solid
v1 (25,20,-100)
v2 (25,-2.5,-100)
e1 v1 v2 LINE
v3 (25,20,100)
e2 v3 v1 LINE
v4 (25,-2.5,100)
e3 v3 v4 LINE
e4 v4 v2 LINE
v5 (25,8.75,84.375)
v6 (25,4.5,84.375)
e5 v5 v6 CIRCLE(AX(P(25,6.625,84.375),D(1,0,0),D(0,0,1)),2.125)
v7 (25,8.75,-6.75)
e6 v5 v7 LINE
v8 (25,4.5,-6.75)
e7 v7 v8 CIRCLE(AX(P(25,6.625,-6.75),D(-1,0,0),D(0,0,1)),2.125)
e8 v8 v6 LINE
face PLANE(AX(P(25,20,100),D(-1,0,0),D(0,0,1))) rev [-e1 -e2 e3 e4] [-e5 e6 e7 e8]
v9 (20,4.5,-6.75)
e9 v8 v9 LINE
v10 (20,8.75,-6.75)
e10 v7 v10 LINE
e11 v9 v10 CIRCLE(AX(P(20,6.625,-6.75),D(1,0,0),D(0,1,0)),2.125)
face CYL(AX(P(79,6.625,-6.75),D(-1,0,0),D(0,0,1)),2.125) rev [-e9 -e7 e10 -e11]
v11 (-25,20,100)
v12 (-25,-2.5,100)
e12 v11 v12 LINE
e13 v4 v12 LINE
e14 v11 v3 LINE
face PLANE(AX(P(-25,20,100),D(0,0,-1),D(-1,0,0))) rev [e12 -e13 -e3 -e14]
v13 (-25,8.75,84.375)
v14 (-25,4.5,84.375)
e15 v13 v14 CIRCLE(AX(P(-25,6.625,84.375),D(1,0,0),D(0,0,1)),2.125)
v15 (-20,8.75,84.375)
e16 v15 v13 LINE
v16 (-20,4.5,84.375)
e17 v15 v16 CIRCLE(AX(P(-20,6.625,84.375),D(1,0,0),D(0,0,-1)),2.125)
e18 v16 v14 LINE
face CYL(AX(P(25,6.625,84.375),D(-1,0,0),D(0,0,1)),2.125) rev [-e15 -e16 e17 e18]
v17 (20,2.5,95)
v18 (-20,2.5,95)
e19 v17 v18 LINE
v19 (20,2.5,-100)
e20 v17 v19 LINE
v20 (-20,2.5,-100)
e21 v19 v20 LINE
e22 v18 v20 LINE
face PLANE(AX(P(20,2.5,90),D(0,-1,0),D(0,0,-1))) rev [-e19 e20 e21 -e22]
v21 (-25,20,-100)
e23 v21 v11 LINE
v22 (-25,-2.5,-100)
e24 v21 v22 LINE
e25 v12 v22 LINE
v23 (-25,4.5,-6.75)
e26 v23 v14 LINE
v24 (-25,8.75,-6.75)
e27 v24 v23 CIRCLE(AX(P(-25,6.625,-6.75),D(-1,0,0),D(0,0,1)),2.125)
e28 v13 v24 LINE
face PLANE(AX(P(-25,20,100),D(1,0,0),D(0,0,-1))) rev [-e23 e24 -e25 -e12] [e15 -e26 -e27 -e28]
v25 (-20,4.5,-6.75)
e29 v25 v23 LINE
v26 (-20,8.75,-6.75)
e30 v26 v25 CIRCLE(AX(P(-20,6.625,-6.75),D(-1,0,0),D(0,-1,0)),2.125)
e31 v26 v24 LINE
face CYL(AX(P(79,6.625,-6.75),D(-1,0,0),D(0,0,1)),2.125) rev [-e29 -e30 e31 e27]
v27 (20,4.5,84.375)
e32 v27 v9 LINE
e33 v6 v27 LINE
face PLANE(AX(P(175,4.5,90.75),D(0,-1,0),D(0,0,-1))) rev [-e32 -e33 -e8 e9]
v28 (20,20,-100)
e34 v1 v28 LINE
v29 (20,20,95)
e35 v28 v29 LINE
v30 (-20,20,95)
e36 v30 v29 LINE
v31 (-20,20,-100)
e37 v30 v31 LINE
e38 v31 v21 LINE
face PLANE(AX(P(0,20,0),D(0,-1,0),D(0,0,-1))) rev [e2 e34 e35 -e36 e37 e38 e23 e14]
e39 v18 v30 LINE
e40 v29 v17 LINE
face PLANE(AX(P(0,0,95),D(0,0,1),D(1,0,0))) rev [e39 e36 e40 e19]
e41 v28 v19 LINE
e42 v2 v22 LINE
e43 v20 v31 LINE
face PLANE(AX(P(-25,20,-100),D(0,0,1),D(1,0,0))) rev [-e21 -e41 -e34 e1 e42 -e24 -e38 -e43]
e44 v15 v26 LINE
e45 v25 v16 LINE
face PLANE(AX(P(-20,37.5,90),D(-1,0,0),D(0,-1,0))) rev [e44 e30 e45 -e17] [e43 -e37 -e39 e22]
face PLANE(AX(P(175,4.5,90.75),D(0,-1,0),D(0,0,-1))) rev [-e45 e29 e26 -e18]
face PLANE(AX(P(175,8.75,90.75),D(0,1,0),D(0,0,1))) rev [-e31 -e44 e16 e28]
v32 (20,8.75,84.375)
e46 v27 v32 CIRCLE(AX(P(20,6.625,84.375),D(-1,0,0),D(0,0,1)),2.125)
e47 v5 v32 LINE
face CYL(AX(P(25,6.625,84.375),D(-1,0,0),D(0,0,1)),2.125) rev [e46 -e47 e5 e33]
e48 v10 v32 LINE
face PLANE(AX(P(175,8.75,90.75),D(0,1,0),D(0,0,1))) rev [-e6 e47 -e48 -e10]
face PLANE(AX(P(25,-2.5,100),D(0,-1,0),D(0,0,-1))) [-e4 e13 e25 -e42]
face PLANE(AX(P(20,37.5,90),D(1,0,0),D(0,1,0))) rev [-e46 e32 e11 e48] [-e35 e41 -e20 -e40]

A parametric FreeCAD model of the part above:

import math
import FreeCAD as App
import Part
import Sketcher

V = App.Vector

doc = App.newDocument("Part")
body = doc.addObject("PartDesign::Body", "Body")

sketch1 = body.newObject("Sketcher::SketchObject", "Sketch")
sketch1.AttachmentSupport = (doc.getObject("XZ_Plane"), [""])
sketch1.MapMode = "FlatFace"
sketch1.addGeometry(Part.LineSegment(V(-25, -100, 0), V(-25, 100, 0)), False)
sketch1.addGeometry(Part.LineSegment(V(-25, 100, 0), V(25, 100, 0)), False)
sketch1.addGeometry(Part.LineSegment(V(25, 100, 0), V(25, -100, 0)), False)
sketch1.addGeometry(Part.LineSegment(V(25, -100, 0), V(-25, -100, 0)), False)
sketch1.addConstraint(Sketcher.Constraint("Coincident", 0, 2, 1, 1))
sketch1.addConstraint(Sketcher.Constraint("Coincident", 1, 2, 2, 1))
sketch1.addConstraint(Sketcher.Constraint("Coincident", 2, 2, 3, 1))
sketch1.addConstraint(Sketcher.Constraint("Coincident", 3, 2, 0, 1))
sketch1.addConstraint(Sketcher.Constraint("Vertical", 0))
sketch1.addConstraint(Sketcher.Constraint("Horizontal", 1))
sketch1.addConstraint(Sketcher.Constraint("Vertical", 2))
sketch1.addConstraint(Sketcher.Constraint("Horizontal", 3))
sketch1.addConstraint(Sketcher.Constraint("Symmetric", 0, 2, 2, 2, -1, 1))
sketch1.addConstraint(Sketcher.Constraint("DistanceX", 1, 1, 1, 2, 50.0))
sketch1.addConstraint(Sketcher.Constraint("DistanceY", 0, 1, 0, 2, 200.0))
pad1 = body.newObject("PartDesign::Pad", "Pad")
pad1.Profile = sketch1
pad1.Length = 20
pad1.Reversed = True

sketch2 = body.newObject("Sketcher::SketchObject", "Sketch001")
sketch2.AttachmentSupport = (doc.getObject("XY_Plane"), [""])
sketch2.MapMode = "FlatFace"
sketch2.AttachmentOffset = App.Placement(V(0, 0, -100), App.Rotation())
sketch2.addGeometry(Part.LineSegment(V(20, 38, 0), V(20, 2, 0)), False)
sketch2.addGeometry(Part.LineSegment(V(20, 2, 0), V(-20, 2, 0)), False)
sketch2.addGeometry(Part.LineSegment(V(-20, 2, 0), V(-20, 38, 0)), False)
sketch2.addGeometry(Part.LineSegment(V(-20, 38, 0), V(20, 38, 0)), False)
sketch2.addConstraint(Sketcher.Constraint("Coincident", 0, 2, 1, 1))
sketch2.addConstraint(Sketcher.Constraint("Coincident", 1, 2, 2, 1))
sketch2.addConstraint(Sketcher.Constraint("Coincident", 2, 2, 3, 1))
sketch2.addConstraint(Sketcher.Constraint("Coincident", 3, 2, 0, 1))
sketch2.addConstraint(Sketcher.Constraint("Vertical", 0))
sketch2.addConstraint(Sketcher.Constraint("Horizontal", 1))
sketch2.addConstraint(Sketcher.Constraint("Vertical", 2))
sketch2.addConstraint(Sketcher.Constraint("Horizontal", 3))
sketch2.addConstraint(Sketcher.Constraint("DistanceX", 1, 2, 1, 1, 40.0))
sketch2.addConstraint(Sketcher.Constraint("DistanceY", 0, 2, 0, 1, 35.0))
sketch2.addConstraint(Sketcher.Constraint("DistanceX", -1, 1, 0, 2, 20.0))
sketch2.addConstraint(Sketcher.Constraint("DistanceY", -1, 1, 0, 2, 2.5))
pocket1 = body.newObject("PartDesign::Pocket", "Pocket")
pocket1.Profile = sketch2
pocket1.Length = 190
pocket1.Reversed = True

sketch3 = body.newObject("Sketcher::SketchObject", "Sketch002")
sketch3.AttachmentSupport = (doc.getObject("XY_Plane"), [""])
sketch3.MapMode = "FlatFace"
sketch3.AttachmentOffset = App.Placement(V(0, 0, 90), App.Rotation())
sketch3.addGeometry(Part.LineSegment(V(20, 20, 0), V(20, 2, 0)), False)
sketch3.addGeometry(Part.LineSegment(V(20, 2, 0), V(-20, 2, 0)), False)
sketch3.addGeometry(Part.LineSegment(V(-20, 2, 0), V(-20, 20, 0)), False)
sketch3.addGeometry(Part.LineSegment(V(-20, 20, 0), V(20, 20, 0)), False)
sketch3.addConstraint(Sketcher.Constraint("Coincident", 0, 2, 1, 1))
sketch3.addConstraint(Sketcher.Constraint("Coincident", 1, 2, 2, 1))
sketch3.addConstraint(Sketcher.Constraint("Coincident", 2, 2, 3, 1))
sketch3.addConstraint(Sketcher.Constraint("Coincident", 3, 2, 0, 1))
sketch3.addConstraint(Sketcher.Constraint("Vertical", 0))
sketch3.addConstraint(Sketcher.Constraint("Horizontal", 1))
sketch3.addConstraint(Sketcher.Constraint("Vertical", 2))
sketch3.addConstraint(Sketcher.Constraint("Horizontal", 3))
sketch3.addConstraint(Sketcher.Constraint("DistanceX", 1, 2, 1, 1, 40.0))
sketch3.addConstraint(Sketcher.Constraint("DistanceY", 0, 2, 0, 1, 17.5))
sketch3.addConstraint(Sketcher.Constraint("DistanceX", -1, 1, 0, 2, 20.0))
sketch3.addConstraint(Sketcher.Constraint("DistanceY", -1, 1, 2, 2, 20.0))
pocket2 = body.newObject("PartDesign::Pocket", "Pocket001")
pocket2.Profile = sketch3
pocket2.Length = 5
pocket2.Reversed = True

sketch4 = body.newObject("Sketcher::SketchObject", "Sketch003")
sketch4.AttachmentSupport = (doc.getObject("XY_Plane"), [""])
sketch4.MapMode = "FlatFace"
sketch4.AttachmentOffset = App.Placement(V(0, 0, -100), App.Rotation())
sketch4.addGeometry(Part.LineSegment(V(25, 0, 0), V(25, -2.5, 0)), False)
sketch4.addGeometry(Part.LineSegment(V(25, -2.5, 0), V(-25, -2.5, 0)), False)
sketch4.addGeometry(Part.LineSegment(V(-25, -2.5, 0), V(-25, 0, 0)), False)
sketch4.addGeometry(Part.LineSegment(V(-25, 0, 0), V(25, 0, 0)), False)
sketch4.addConstraint(Sketcher.Constraint("Coincident", 0, 2, 1, 1))
sketch4.addConstraint(Sketcher.Constraint("Coincident", 1, 2, 2, 1))
sketch4.addConstraint(Sketcher.Constraint("Coincident", 2, 2, 3, 1))
sketch4.addConstraint(Sketcher.Constraint("Coincident", 3, 2, 0, 1))
sketch4.addConstraint(Sketcher.Constraint("Vertical", 0))
sketch4.addConstraint(Sketcher.Constraint("Horizontal", 1))
sketch4.addConstraint(Sketcher.Constraint("Vertical", 2))
sketch4.addConstraint(Sketcher.Constraint("Horizontal", 3))
sketch4.addConstraint(Sketcher.Constraint("Symmetric", 2, 2, 3, 2, -1, 1))
sketch4.addConstraint(Sketcher.Constraint("DistanceX", 1, 2, 1, 1, 50.0))
sketch4.addConstraint(Sketcher.Constraint("DistanceY", 0, 2, 0, 1, 2.5))
pad2 = body.newObject("PartDesign::Pad", "Pad001")
pad2.Profile = sketch4
pad2.Length = 200

sketch5 = body.newObject("Sketcher::SketchObject", "Sketch004")
sketch5.AttachmentSupport = (doc.getObject("YZ_Plane"), [""])
sketch5.MapMode = "FlatFace"
sketch5.AttachmentOffset = App.Placement(V(0, 0, -25), App.Rotation())
sketch5.addGeometry(Part.LineSegment(V(4.5, -95.8, 0), V(4.5, 90.8, 0)), False)
sketch5.addGeometry(Part.ArcOfCircle(Part.Circle(V(6.6, 90.8, 0), V(0, 0, 1), 2.1), math.radians(0), math.radians(180)), False)
sketch5.addGeometry(Part.LineSegment(V(8.8, 90.8, 0), V(8.8, -95.8, 0)), False)
sketch5.addGeometry(Part.ArcOfCircle(Part.Circle(V(6.6, -95.8, 0), V(0, 0, 1), 2.1), math.radians(180), math.radians(360)), False)
sketch5.addConstraint(Sketcher.Constraint("Tangent", 0, 2, 1, 2))
sketch5.addConstraint(Sketcher.Constraint("Tangent", 1, 1, 2, 1))
sketch5.addConstraint(Sketcher.Constraint("Tangent", 2, 2, 3, 2))
sketch5.addConstraint(Sketcher.Constraint("Tangent", 3, 1, 0, 1))
sketch5.addConstraint(Sketcher.Constraint("Vertical", 0))
sketch5.addConstraint(Sketcher.Constraint("Vertical", 2))
sketch5.addConstraint(Sketcher.Constraint("DistanceY", 0, 1, 0, 2, 186.5))
sketch5.addConstraint(Sketcher.Constraint("Radius", 1, 2.125))
sketch5.addConstraint(Sketcher.Constraint("DistanceX", -1, 1, 0, 2, 4.5))
sketch5.addConstraint(Sketcher.Constraint("DistanceY", -1, 1, 1, 3, 90.75))
pocket3 = body.newObject("PartDesign::Pocket", "Pocket002")
pocket3.Profile = sketch5
pocket3.Length = 200
pocket3.Reversed = True

sketch6 = body.newObject("Sketcher::SketchObject", "Sketch005")
sketch6.AttachmentSupport = (doc.getObject("YZ_Plane"), [""])
sketch6.MapMode = "FlatFace"
sketch6.AttachmentOffset = App.Placement(V(0, 0, -25), App.Rotation())
sketch6.addGeometry(Part.LineSegment(V(4.5, -100, 0), V(4.5, -0.4, 0)), False)
sketch6.addGeometry(Part.ArcOfCircle(Part.Circle(V(6.6, -0.4, 0), V(0, 0, 1), 2.1), math.radians(180), math.radians(360)), False)
sketch6.addGeometry(Part.LineSegment(V(8.8, -0.4, 0), V(8.8, -100, 0)), False)
sketch6.addGeometry(Part.LineSegment(V(8.8, -100, 0), V(4.5, -100, 0)), False)
sketch6.addConstraint(Sketcher.Constraint("Tangent", 0, 2, 1, 1))
sketch6.addConstraint(Sketcher.Constraint("Tangent", 1, 2, 2, 1))
sketch6.addConstraint(Sketcher.Constraint("Coincident", 2, 2, 3, 1))
sketch6.addConstraint(Sketcher.Constraint("Coincident", 3, 2, 0, 1))
sketch6.addConstraint(Sketcher.Constraint("Vertical", 0))
sketch6.addConstraint(Sketcher.Constraint("Vertical", 2))
sketch6.addConstraint(Sketcher.Constraint("Horizontal", 3))
sketch6.addConstraint(Sketcher.Constraint("DistanceY", 2, 2, -1, 1, 100.0))
sketch6.addConstraint(Sketcher.Constraint("Radius", 1, 2.125))
sketch6.addConstraint(Sketcher.Constraint("DistanceX", -1, 1, 0, 2, 4.5))
sketch6.addConstraint(Sketcher.Constraint("DistanceY", 0, 1, 0, 2, 99.625))
pad3 = body.newObject("PartDesign::Pad", "Pad002")
pad3.Profile = sketch6
pad3.Length = 50

sketch7 = body.newObject("Sketcher::SketchObject", "Sketch006")
sketch7.AttachmentSupport = (doc.getObject("XY_Plane"), [""])
sketch7.MapMode = "FlatFace"
sketch7.AttachmentOffset = App.Placement(V(0, 0, -100), App.Rotation())
sketch7.addGeometry(Part.LineSegment(V(20, 8.8, 0), V(20, 4.5, 0)), False)
sketch7.addGeometry(Part.LineSegment(V(20, 4.5, 0), V(-20, 4.5, 0)), False)
sketch7.addGeometry(Part.LineSegment(V(-20, 4.5, 0), V(-20, 8.8, 0)), False)
sketch7.addGeometry(Part.LineSegment(V(-20, 8.8, 0), V(20, 8.8, 0)), False)
sketch7.addConstraint(Sketcher.Constraint("Coincident", 0, 2, 1, 1))
sketch7.addConstraint(Sketcher.Constraint("Coincident", 1, 2, 2, 1))
sketch7.addConstraint(Sketcher.Constraint("Coincident", 2, 2, 3, 1))
sketch7.addConstraint(Sketcher.Constraint("Coincident", 3, 2, 0, 1))
sketch7.addConstraint(Sketcher.Constraint("Vertical", 0))
sketch7.addConstraint(Sketcher.Constraint("Horizontal", 1))
sketch7.addConstraint(Sketcher.Constraint("Vertical", 2))
sketch7.addConstraint(Sketcher.Constraint("Horizontal", 3))
sketch7.addConstraint(Sketcher.Constraint("DistanceX", 1, 2, 1, 1, 40.0))
sketch7.addConstraint(Sketcher.Constraint("DistanceX", -1, 1, 0, 2, 20.0))
sketch7.addConstraint(Sketcher.Constraint("DistanceY", 0, 2, 0, 1, 4.25))
sketch7.addConstraint(Sketcher.Constraint("DistanceY", -1, 1, 0, 2, 4.5))
pocket4 = body.newObject("PartDesign::Pocket", "Pocket003")
pocket4.Profile = sketch7
pocket4.Length = 104
pocket4.Reversed = True

sketch8 = body.newObject("Sketcher::SketchObject", "Sketch007")
sketch8.AttachmentSupport = (doc.getObject("YZ_Plane"), [""])
sketch8.MapMode = "FlatFace"
sketch8.AttachmentOffset = App.Placement(V(0, 0, -25), App.Rotation())
sketch8.addGeometry(Part.LineSegment(V(4.5, -0.4, 0), V(8.8, -0.4, 0)), False)
sketch8.addGeometry(Part.LineSegment(V(8.8, -0.4, 0), V(8.8, -6.8, 0)), False)
sketch8.addGeometry(Part.ArcOfCircle(Part.Circle(V(6.6, -6.8, 0), V(0, 0, 1), 2.1), math.radians(180), math.radians(360)), False)
sketch8.addGeometry(Part.LineSegment(V(4.5, -6.8, 0), V(4.5, -0.4, 0)), False)
sketch8.addConstraint(Sketcher.Constraint("Coincident", 0, 2, 1, 1))
sketch8.addConstraint(Sketcher.Constraint("Tangent", 1, 2, 2, 2))
sketch8.addConstraint(Sketcher.Constraint("Tangent", 2, 1, 3, 1))
sketch8.addConstraint(Sketcher.Constraint("Coincident", 3, 2, 0, 1))
sketch8.addConstraint(Sketcher.Constraint("Horizontal", 0))
sketch8.addConstraint(Sketcher.Constraint("Vertical", 1))
sketch8.addConstraint(Sketcher.Constraint("Vertical", 3))
sketch8.addConstraint(Sketcher.Constraint("Radius", 2, 2.125))
sketch8.addConstraint(Sketcher.Constraint("DistanceX", -1, 1, 2, 1, 4.5))
sketch8.addConstraint(Sketcher.Constraint("DistanceY", 1, 2, 1, 1, 6.375))
sketch8.addConstraint(Sketcher.Constraint("DistanceY", 2, 3, -1, 1, 6.75))
pocket5 = body.newObject("PartDesign::Pocket", "Pocket004")
pocket5.Profile = sketch8
pocket5.Length = 104
pocket5.Reversed = True

sketch9 = body.newObject("Sketcher::SketchObject", "Sketch008")
sketch9.AttachmentSupport = (doc.getObject("YZ_Plane"), [""])
sketch9.MapMode = "FlatFace"
sketch9.AttachmentOffset = App.Placement(V(0, 0, -25), App.Rotation())
sketch9.addGeometry(Part.LineSegment(V(4.5, 84.4, 0), V(4.5, 90.8, 0)), False)
sketch9.addGeometry(Part.ArcOfCircle(Part.Circle(V(6.6, 90.8, 0), V(0, 0, 1), 2.1), math.radians(0), math.radians(180)), False)
sketch9.addGeometry(Part.LineSegment(V(8.8, 90.8, 0), V(8.8, 84.4, 0)), False)
sketch9.addGeometry(Part.ArcOfCircle(Part.Circle(V(6.6, 84.4, 0), V(0, 0, 1), 2.1), math.radians(0), math.radians(180)), False)
sketch9.addConstraint(Sketcher.Constraint("Tangent", 0, 2, 1, 2))
sketch9.addConstraint(Sketcher.Constraint("Tangent", 1, 1, 2, 1))
sketch9.addConstraint(Sketcher.Constraint("Tangent", 2, 2, 3, 1))
sketch9.addConstraint(Sketcher.Constraint("Tangent", 3, 2, 0, 1))
sketch9.addConstraint(Sketcher.Constraint("Vertical", 0))
sketch9.addConstraint(Sketcher.Constraint("Vertical", 2))
sketch9.addConstraint(Sketcher.Constraint("Radius", 1, 2.125))
sketch9.addConstraint(Sketcher.Constraint("DistanceX", -1, 1, 0, 2, 4.5))
sketch9.addConstraint(Sketcher.Constraint("DistanceY", 0, 1, 0, 2, 6.375))
sketch9.addConstraint(Sketcher.Constraint("DistanceY", -1, 1, 1, 3, 90.75))
pad4 = body.newObject("PartDesign::Pad", "Pad003")
pad4.Profile = sketch9
pad4.Length = 50

sketch10 = body.newObject("Sketcher::SketchObject", "Sketch009")
sketch10.AttachmentSupport = (doc.getObject("XY_Plane"), [""])
sketch10.MapMode = "FlatFace"
sketch10.AttachmentOffset = App.Placement(V(0, 0, 95), App.Rotation())
sketch10.addGeometry(Part.LineSegment(V(20, 8.8, 0), V(20, 4.5, 0)), False)
sketch10.addGeometry(Part.LineSegment(V(20, 4.5, 0), V(-20, 4.5, 0)), False)
sketch10.addGeometry(Part.LineSegment(V(-20, 4.5, 0), V(-20, 8.8, 0)), False)
sketch10.addGeometry(Part.LineSegment(V(-20, 8.8, 0), V(20, 8.8, 0)), False)
sketch10.addConstraint(Sketcher.Constraint("Coincident", 0, 2, 1, 1))
sketch10.addConstraint(Sketcher.Constraint("Coincident", 1, 2, 2, 1))
sketch10.addConstraint(Sketcher.Constraint("Coincident", 2, 2, 3, 1))
sketch10.addConstraint(Sketcher.Constraint("Coincident", 3, 2, 0, 1))
sketch10.addConstraint(Sketcher.Constraint("Vertical", 0))
sketch10.addConstraint(Sketcher.Constraint("Horizontal", 1))
sketch10.addConstraint(Sketcher.Constraint("Vertical", 2))
sketch10.addConstraint(Sketcher.Constraint("Horizontal", 3))
sketch10.addConstraint(Sketcher.Constraint("DistanceX", 1, 2, 1, 1, 40.0))
sketch10.addConstraint(Sketcher.Constraint("DistanceX", -1, 1, 0, 2, 20.0))
sketch10.addConstraint(Sketcher.Constraint("DistanceY", 0, 2, 0, 1, 4.25))
sketch10.addConstraint(Sketcher.Constraint("DistanceY", -1, 1, 0, 2, 4.5))
pocket6 = body.newObject("PartDesign::Pocket", "Pocket005")
pocket6.Profile = sketch10
pocket6.Length = 50

doc.recompute()
